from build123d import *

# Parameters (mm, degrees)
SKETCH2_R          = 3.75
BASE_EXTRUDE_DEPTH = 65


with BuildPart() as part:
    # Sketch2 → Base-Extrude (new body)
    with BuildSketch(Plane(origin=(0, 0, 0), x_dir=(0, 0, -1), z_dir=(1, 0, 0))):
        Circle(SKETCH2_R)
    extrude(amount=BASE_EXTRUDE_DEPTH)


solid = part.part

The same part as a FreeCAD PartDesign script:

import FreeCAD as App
import Part
import Sketcher

V = App.Vector

doc = App.newDocument("Part")
body = doc.addObject("PartDesign::Body", "Body")

sketch1 = doc.addObject("Sketcher::SketchObject", "Sketch")
body.addObject(sketch1)
sketch1.AttachmentSupport = (doc.YZ_Plane, [""])
sketch1.MapMode = "FlatFace"
sketch1.addGeometry(Part.Circle(V(0, 0, 0), V(0, 0, 1), 3.8), False)
sketch1.addConstraint(Sketcher.Constraint("Coincident", 0, 3, -1, 1))
sketch1.addConstraint(Sketcher.Constraint("Diameter", 0, 7.5))
pad1 = doc.addObject("PartDesign::Pad", "Pad")
body.addObject(pad1)
pad1.Profile = sketch1
pad1.Length = 65

doc.recompute()
